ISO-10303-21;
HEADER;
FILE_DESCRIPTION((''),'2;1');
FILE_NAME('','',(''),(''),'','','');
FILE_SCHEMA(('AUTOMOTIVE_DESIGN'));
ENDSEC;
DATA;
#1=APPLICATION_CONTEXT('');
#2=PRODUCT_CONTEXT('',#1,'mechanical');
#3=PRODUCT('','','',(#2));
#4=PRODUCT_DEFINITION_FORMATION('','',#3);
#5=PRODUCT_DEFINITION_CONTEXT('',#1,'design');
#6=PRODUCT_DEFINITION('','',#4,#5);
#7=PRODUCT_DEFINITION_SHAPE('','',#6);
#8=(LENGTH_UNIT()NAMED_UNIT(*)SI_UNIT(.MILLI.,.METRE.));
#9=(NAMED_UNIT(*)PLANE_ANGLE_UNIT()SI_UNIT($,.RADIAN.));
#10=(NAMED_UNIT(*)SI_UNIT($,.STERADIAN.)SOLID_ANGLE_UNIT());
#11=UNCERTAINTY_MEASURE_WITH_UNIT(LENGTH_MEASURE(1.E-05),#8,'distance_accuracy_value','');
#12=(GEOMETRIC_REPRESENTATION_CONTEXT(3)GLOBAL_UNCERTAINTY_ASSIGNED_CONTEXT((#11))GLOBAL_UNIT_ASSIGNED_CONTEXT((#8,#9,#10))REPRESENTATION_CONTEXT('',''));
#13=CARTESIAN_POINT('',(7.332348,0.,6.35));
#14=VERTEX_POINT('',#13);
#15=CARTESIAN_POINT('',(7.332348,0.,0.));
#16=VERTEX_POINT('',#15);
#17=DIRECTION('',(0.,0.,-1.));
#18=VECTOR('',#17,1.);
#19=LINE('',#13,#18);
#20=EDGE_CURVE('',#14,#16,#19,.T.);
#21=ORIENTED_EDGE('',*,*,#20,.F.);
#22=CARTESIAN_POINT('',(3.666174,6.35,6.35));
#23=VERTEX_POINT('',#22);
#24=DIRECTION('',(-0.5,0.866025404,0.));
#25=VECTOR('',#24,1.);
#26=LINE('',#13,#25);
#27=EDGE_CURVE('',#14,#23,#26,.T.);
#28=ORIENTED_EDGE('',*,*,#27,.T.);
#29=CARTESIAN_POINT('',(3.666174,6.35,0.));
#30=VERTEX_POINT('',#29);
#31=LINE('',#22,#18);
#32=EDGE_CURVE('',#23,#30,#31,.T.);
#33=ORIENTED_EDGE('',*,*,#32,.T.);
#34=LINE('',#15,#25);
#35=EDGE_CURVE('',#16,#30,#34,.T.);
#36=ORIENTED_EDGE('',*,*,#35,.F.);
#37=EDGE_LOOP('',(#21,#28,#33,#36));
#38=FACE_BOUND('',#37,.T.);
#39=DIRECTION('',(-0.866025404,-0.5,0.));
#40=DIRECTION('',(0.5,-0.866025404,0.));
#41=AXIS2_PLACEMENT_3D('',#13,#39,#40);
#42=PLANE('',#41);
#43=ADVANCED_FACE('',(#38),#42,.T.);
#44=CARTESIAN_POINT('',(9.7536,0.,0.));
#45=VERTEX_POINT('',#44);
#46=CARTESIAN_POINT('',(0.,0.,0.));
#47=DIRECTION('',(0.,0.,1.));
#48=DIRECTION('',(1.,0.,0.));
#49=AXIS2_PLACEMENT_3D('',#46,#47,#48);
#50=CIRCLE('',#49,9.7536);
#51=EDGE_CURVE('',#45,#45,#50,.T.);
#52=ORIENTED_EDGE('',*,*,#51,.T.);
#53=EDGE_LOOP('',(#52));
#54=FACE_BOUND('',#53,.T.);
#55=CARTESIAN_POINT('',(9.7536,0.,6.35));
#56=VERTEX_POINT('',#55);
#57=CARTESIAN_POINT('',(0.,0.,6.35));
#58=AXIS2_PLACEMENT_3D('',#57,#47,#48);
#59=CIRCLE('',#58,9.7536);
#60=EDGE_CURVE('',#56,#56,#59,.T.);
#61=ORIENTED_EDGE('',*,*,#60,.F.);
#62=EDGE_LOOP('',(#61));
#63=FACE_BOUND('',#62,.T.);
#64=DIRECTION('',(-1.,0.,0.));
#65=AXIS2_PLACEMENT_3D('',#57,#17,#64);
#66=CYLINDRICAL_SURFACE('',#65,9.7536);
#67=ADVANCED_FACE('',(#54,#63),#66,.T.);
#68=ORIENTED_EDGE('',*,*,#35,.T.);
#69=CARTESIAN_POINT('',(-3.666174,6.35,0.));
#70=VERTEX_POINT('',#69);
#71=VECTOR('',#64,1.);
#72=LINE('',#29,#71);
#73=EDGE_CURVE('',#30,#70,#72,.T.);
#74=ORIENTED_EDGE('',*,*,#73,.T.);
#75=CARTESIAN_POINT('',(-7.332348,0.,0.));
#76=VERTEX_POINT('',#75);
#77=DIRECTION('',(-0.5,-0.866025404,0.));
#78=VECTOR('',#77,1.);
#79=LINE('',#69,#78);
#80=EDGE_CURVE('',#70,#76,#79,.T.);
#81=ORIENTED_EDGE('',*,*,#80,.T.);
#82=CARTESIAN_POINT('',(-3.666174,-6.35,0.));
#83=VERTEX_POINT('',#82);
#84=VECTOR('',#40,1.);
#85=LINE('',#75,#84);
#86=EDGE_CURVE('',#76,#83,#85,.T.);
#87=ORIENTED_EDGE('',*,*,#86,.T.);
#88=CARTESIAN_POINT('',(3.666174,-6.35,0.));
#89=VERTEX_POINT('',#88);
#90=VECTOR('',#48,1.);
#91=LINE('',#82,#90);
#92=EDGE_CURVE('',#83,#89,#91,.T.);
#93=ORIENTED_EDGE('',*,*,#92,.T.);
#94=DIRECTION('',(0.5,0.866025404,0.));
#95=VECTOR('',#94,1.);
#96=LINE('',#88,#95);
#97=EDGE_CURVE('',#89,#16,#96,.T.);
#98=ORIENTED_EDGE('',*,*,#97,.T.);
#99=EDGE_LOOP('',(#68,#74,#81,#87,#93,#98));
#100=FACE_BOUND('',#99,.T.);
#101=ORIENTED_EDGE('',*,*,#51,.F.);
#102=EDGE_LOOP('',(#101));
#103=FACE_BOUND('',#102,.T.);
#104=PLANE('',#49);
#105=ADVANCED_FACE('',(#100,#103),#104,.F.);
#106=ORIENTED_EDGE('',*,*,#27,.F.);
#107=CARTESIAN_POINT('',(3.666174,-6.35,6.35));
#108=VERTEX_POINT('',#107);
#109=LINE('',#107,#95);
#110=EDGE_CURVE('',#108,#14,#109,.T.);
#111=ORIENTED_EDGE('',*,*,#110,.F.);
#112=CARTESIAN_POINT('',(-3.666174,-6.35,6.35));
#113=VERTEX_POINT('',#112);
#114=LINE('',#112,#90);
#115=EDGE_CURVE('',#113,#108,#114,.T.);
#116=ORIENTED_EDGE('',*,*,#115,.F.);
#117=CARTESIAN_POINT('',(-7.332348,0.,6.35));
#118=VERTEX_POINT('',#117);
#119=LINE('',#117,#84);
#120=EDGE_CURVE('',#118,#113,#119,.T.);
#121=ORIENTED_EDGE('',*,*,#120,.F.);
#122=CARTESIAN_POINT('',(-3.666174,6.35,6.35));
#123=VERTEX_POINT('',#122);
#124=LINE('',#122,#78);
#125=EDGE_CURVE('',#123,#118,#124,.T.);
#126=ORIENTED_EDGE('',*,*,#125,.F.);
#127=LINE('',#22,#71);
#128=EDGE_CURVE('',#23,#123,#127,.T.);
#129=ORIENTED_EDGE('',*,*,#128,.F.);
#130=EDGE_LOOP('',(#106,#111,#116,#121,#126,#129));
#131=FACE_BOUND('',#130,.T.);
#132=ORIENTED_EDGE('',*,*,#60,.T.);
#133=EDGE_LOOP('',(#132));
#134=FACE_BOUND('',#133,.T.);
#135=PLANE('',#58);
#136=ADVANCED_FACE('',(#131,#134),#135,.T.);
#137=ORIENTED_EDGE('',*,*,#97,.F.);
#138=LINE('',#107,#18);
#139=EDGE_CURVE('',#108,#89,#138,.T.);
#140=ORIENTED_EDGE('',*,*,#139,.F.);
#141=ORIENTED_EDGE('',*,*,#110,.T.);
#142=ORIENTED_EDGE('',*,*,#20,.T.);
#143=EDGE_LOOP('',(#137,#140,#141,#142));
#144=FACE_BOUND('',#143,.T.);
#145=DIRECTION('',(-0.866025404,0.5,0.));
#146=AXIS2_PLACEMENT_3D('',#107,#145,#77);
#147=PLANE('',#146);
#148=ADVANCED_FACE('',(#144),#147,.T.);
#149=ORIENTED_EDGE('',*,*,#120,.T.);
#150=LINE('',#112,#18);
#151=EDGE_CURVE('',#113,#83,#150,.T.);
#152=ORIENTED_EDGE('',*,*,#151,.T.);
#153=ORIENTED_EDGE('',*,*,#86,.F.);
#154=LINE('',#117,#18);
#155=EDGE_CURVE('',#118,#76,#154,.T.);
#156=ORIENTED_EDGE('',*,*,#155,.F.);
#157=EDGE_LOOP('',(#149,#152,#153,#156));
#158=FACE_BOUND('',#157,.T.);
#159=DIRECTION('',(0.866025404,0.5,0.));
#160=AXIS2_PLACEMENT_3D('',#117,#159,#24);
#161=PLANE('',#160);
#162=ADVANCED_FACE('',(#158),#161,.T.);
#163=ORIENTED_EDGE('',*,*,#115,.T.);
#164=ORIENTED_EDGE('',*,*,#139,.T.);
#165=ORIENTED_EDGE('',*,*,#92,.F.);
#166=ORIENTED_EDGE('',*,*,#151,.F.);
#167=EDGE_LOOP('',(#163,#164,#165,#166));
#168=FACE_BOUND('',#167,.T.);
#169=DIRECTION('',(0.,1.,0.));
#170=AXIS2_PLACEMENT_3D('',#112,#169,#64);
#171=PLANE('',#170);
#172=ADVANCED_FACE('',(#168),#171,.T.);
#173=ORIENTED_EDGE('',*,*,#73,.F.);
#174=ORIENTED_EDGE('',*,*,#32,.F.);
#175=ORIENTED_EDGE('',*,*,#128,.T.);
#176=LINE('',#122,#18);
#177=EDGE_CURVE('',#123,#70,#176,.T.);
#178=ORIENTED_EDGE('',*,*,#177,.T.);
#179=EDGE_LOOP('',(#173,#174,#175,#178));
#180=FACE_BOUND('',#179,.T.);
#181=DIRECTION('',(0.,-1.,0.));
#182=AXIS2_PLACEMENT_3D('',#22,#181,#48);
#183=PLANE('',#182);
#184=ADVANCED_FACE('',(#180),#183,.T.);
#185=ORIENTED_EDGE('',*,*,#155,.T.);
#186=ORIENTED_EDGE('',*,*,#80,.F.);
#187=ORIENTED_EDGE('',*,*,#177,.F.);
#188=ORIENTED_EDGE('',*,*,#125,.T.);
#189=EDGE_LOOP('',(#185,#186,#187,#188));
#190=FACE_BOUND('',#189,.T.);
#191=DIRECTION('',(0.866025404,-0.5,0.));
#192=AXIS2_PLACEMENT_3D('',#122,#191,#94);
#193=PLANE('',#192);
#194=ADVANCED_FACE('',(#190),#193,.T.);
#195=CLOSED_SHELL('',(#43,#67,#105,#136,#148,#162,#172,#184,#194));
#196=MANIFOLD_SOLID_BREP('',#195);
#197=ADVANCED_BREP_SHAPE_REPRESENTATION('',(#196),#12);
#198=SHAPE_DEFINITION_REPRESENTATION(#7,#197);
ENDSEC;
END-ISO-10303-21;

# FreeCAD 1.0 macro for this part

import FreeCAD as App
import Part
import Sketcher
from FreeCAD import Vector
Q = App.Units.Quantity


def add_polygon(sketch, points):
    """Adds a closed chain of lines whose ends are joined by coincident constraints."""
    first, n = sketch.GeometryCount, len(points)
    for a, b in zip(points, points[1:] + points[:1]):
        sketch.addGeometry(Part.LineSegment(App.Vector(*a, 0), App.Vector(*b, 0)), False)
    for i in range(n):
        sketch.addConstraint(Sketcher.Constraint("Coincident", first + i, 2, first + (i + 1) % n, 1))

doc = App.newDocument("Part")
body = doc.addObject("PartDesign::Body", "Body")

# Sketch on XY plane
sketch1 = doc.addObject("Sketcher::SketchObject", "Sketch")
body.addObject(sketch1)
sketch1.AttachmentSupport = (doc.XY_Plane, [""])
sketch1.MapMode = "FlatFace"
sketch1.addGeometry(Part.Circle(Vector(0, 0, 0), Vector(0, 0, 1), 10), False)  # 0
add_polygon(sketch1, [(-4, -6), (-7, 0), (-4, 6), (4, 6), (7, 0), (4, -6)])  # lines 1-6
sketch1.addConstraint([
    Sketcher.Constraint("Horizontal", 3),
    Sketcher.Constraint("Horizontal", 6),
    Sketcher.Constraint("Coincident", 0, 3, -1, 1),
    Sketcher.Constraint("Symmetric", 1, 2, 4, 2, -1, 1),
    Sketcher.Constraint("Symmetric", 2, 2, 5, 2, -1, 1),
    Sketcher.Constraint("PointOnObject", 1, 2, -1),
    Sketcher.Constraint("Parallel", 1, 4),
    Sketcher.Constraint("Vertical", 3, 2, 5, 2),
    Sketcher.Constraint("Diameter", 0, Q("0.768 in")),
    Sketcher.Constraint("Angle", 1, Q("120 deg")),
    Sketcher.Constraint("DistanceY", 5, 2, 3, 2, Q("0.5 in")),
    Sketcher.Constraint("DistanceX", 3, 1, 3, 2, Q("7.332348 mm")),
])
pad1 = doc.addObject("PartDesign::Pad", "Pad")
body.addObject(pad1)
pad1.Profile = sketch1
pad1.Length = Q("0.25 in")

doc.recompute()
